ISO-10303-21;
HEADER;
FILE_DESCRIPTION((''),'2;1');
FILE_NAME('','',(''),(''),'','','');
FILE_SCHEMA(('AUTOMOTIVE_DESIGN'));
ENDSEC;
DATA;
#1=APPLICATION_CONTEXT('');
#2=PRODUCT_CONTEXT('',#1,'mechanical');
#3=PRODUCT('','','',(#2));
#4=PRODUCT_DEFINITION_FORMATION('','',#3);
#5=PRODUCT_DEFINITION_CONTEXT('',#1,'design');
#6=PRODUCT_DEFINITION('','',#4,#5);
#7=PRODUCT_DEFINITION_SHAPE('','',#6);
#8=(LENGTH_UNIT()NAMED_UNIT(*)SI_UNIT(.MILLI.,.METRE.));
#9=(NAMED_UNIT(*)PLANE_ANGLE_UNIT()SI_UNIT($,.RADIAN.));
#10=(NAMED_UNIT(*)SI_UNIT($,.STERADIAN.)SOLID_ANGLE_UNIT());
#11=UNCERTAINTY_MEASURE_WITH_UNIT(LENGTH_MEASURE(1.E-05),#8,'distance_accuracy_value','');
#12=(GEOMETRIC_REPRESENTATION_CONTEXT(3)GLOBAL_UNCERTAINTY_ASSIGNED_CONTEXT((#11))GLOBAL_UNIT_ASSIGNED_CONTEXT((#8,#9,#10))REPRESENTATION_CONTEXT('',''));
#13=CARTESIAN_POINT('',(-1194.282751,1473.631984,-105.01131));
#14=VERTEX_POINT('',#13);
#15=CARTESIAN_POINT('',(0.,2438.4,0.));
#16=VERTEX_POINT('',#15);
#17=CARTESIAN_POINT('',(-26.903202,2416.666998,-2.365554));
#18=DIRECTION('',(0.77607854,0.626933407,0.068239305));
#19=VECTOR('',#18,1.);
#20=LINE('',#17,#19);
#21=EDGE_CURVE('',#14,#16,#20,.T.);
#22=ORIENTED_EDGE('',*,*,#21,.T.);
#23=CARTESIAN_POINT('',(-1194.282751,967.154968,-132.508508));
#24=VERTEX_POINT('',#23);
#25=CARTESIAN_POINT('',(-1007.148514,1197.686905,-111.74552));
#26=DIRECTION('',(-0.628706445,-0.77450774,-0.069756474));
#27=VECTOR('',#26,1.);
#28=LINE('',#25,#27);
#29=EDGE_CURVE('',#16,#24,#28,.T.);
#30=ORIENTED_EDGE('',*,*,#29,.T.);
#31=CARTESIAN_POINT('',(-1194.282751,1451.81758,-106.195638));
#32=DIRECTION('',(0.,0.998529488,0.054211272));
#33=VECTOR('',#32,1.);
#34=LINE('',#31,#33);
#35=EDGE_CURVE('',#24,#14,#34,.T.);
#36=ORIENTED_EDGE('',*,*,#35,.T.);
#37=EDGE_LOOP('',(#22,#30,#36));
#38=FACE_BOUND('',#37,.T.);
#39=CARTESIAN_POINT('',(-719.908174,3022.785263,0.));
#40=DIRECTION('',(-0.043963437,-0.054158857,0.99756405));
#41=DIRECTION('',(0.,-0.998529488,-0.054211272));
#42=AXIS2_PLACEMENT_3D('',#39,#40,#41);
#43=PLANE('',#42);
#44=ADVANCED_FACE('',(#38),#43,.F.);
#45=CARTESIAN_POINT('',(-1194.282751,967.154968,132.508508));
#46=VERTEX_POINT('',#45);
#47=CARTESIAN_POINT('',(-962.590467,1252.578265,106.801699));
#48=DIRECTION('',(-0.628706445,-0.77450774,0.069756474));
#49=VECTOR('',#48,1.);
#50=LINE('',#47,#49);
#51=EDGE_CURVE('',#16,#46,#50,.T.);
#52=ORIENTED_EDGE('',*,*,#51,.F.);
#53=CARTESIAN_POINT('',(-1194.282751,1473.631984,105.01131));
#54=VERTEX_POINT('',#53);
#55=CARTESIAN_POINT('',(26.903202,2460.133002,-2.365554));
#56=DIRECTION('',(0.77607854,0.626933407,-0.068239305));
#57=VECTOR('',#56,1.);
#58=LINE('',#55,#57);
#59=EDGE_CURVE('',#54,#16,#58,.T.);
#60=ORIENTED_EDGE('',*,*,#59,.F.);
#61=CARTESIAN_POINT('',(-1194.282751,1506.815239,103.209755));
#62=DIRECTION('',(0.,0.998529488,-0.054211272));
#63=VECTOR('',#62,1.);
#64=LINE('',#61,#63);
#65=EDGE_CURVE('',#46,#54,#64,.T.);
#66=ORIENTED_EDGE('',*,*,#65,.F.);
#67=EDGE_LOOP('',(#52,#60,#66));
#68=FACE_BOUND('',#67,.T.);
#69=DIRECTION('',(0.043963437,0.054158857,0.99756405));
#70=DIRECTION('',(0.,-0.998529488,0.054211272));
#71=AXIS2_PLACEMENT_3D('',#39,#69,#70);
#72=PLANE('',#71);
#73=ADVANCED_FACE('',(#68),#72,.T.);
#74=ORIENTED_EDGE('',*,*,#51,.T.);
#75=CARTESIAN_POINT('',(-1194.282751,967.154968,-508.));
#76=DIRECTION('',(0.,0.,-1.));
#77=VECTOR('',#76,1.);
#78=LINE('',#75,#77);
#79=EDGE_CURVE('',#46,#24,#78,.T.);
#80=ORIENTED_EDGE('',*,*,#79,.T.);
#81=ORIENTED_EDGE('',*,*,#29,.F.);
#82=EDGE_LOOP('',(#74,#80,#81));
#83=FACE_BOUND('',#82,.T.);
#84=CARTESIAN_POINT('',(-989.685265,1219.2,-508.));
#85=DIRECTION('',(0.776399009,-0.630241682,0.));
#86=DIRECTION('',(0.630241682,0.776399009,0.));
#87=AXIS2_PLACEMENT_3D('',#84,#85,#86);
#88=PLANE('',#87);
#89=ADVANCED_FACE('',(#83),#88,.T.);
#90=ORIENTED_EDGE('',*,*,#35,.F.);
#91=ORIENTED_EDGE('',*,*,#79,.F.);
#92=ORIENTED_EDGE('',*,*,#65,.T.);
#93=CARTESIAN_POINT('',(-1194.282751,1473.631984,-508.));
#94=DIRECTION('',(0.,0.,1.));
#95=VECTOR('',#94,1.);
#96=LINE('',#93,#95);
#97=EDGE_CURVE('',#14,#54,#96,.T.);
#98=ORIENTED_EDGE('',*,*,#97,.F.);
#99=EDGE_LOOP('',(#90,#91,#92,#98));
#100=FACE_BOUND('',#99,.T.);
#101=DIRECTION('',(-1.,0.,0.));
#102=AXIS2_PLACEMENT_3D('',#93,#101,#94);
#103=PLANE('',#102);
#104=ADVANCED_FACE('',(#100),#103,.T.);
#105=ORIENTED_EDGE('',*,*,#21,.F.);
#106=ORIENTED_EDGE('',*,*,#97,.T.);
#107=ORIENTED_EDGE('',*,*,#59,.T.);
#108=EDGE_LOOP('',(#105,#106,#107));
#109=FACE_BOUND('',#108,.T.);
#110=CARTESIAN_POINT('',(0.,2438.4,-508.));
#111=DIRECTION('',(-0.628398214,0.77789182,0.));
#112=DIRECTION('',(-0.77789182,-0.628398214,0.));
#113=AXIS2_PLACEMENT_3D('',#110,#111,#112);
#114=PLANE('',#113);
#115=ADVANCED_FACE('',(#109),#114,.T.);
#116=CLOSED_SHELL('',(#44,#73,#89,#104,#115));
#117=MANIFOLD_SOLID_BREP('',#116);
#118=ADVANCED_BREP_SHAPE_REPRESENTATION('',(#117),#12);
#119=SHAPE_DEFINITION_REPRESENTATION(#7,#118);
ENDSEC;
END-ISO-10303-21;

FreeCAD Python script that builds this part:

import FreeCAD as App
import Part
import Sketcher
Q = App.Units.Quantity


def add_polygon(sketch, points):
    """Adds a closed chain of lines whose ends are joined by coincident constraints."""
    first, n = sketch.GeometryCount, len(points)
    for a, b in zip(points, points[1:] + points[:1]):
        sketch.addGeometry(Part.LineSegment(App.Vector(*a, 0), App.Vector(*b, 0)), False)
    for i in range(n):
        sketch.addConstraint(Sketcher.Constraint("Coincident", first + i, 2, first + (i + 1) % n, 1))

doc = App.newDocument("Part")
body = doc.addObject("PartDesign::Body", "Body")

sketch1 = body.newObject("Sketcher::SketchObject", "Sketch")
sketch1.AttachmentSupport = (doc.getObject("XY_Plane"), [""])
sketch1.MapMode = "FlatFace"
add_polygon(sketch1, [(0, 0), (-989.685265, 1219.2), (0, 2438.4), (-1194.282751, 1473.631984), (-1194.282751, 964.768016)])
sketch1.addConstraint(Sketcher.Constraint("Vertical", 3))
sketch1.addConstraint(Sketcher.Constraint("Coincident", 4, 2, -1, 1))
sketch1.addConstraint(Sketcher.Constraint("PointOnObject", 1, 2, -2))
sketch1.addConstraint(Sketcher.Constraint("Equal", 0, 1))
sketch1.addConstraint(Sketcher.Constraint("Equal", 2, 4))
sketch1.addConstraint(Sketcher.Constraint("DistanceY", -1, 1, 0, 2, Q("48 in")))
sketch1.addConstraint(Sketcher.Constraint("DistanceY", 3, 2, 3, 1, 508.863969))
sketch1.addConstraint(Sketcher.Constraint("Distance", 0, 1570.326579))
sketch1.addConstraint(Sketcher.Constraint("Distance", 2, 1535.281281))
pad1 = body.newObject("PartDesign::Pad", "Pad")
pad1.Profile = sketch1
pad1.Type = "TwoLengths"
pad1.Length = Q("20 in")
pad1.Length2 = Q("20 in")

sketch2 = body.newObject("Sketcher::SketchObject", "Sketch001")
sketch2.Placement = App.Placement(App.Vector(-1193.155494, 968.543645, 0), App.Rotation(App.Vector(0.630241682, 0.776399009, 0), App.Vector(0, 0, 0.999999999), App.Vector(0.776399009, -0.630241682, 0), "ZXY"))
add_polygon(sketch2, [(1893.171342, -507.999999), (1893.171342, 0), (-138.828656, -142.091282), (-138.828656, -507.999999)])
add_polygon(sketch2, [(-138.828656, 142.091282), (1893.171342, 0), (1893.171342, 507.999999), (-138.828656, 507.999999)])
sketch2.addConstraint(Sketcher.Constraint("Vertical", 0))
sketch2.addConstraint(Sketcher.Constraint("Vertical", 2))
sketch2.addConstraint(Sketcher.Constraint("Horizontal", 3))
sketch2.addConstraint(Sketcher.Constraint("Vertical", 5))
sketch2.addConstraint(Sketcher.Constraint("Horizontal", 6))
sketch2.addConstraint(Sketcher.Constraint("Vertical", 7))
sketch2.addConstraint(Sketcher.Constraint("Coincident", 4, 2, 0, 2))
sketch2.addConstraint(Sketcher.Constraint("Symmetric", 2, 2, 6, 2, -1))
sketch2.addConstraint(Sketcher.Constraint("PointOnObject", 0, 2, -1))
sketch2.addConstraint(Sketcher.Constraint("Equal", 2, 7))
sketch2.addConstraint(Sketcher.Constraint("DistanceX", 3, 1, 3, 2, Q("79.9999999 in")))
sketch2.addConstraint(Sketcher.Constraint("DistanceY", 0, 1, 0, 2, Q("20 in")))
sketch2.addConstraint(Sketcher.Constraint("Angle", 1, Q("-176 deg")))
sketch2.addConstraint(Sketcher.Constraint("DistanceX", -1, 1, 0, 2, 1893.171342))
pocket1 = body.newObject("PartDesign::Pocket", "Pocket")
pocket1.Profile = sketch2
pocket1.Type = "ThroughAll"
pocket1.Midplane = True

sketch3 = body.newObject("Sketcher::SketchObject", "Sketch002")
sketch3.AttachmentSupport = (doc.getObject("XY_Plane"), [""])
sketch3.MapMode = "FlatFace"
add_polygon(sketch3, [(0, 2438.4), (-1195.452981, 965.713353), (0, 0)])
sketch3.addConstraint(Sketcher.Constraint("Vertical", 2))
sketch3.addConstraint(Sketcher.Constraint("Coincident", 1, 2, -1, 1))
sketch3.addConstraint(Sketcher.Constraint("DistanceY", 2, 1, 2, 2, Q("96 in")))
sketch3.addConstraint(Sketcher.Constraint("Distance", 0, 1896.816751))
sketch3.addConstraint(Sketcher.Constraint("DistanceX", 0, 2, -1, 1, 1195.452981))
pocket2 = body.newObject("PartDesign::Pocket", "Pocket001")
pocket2.Profile = sketch3
pocket2.Type = "ThroughAll"
pocket2.Midplane = True

doc.recompute()
